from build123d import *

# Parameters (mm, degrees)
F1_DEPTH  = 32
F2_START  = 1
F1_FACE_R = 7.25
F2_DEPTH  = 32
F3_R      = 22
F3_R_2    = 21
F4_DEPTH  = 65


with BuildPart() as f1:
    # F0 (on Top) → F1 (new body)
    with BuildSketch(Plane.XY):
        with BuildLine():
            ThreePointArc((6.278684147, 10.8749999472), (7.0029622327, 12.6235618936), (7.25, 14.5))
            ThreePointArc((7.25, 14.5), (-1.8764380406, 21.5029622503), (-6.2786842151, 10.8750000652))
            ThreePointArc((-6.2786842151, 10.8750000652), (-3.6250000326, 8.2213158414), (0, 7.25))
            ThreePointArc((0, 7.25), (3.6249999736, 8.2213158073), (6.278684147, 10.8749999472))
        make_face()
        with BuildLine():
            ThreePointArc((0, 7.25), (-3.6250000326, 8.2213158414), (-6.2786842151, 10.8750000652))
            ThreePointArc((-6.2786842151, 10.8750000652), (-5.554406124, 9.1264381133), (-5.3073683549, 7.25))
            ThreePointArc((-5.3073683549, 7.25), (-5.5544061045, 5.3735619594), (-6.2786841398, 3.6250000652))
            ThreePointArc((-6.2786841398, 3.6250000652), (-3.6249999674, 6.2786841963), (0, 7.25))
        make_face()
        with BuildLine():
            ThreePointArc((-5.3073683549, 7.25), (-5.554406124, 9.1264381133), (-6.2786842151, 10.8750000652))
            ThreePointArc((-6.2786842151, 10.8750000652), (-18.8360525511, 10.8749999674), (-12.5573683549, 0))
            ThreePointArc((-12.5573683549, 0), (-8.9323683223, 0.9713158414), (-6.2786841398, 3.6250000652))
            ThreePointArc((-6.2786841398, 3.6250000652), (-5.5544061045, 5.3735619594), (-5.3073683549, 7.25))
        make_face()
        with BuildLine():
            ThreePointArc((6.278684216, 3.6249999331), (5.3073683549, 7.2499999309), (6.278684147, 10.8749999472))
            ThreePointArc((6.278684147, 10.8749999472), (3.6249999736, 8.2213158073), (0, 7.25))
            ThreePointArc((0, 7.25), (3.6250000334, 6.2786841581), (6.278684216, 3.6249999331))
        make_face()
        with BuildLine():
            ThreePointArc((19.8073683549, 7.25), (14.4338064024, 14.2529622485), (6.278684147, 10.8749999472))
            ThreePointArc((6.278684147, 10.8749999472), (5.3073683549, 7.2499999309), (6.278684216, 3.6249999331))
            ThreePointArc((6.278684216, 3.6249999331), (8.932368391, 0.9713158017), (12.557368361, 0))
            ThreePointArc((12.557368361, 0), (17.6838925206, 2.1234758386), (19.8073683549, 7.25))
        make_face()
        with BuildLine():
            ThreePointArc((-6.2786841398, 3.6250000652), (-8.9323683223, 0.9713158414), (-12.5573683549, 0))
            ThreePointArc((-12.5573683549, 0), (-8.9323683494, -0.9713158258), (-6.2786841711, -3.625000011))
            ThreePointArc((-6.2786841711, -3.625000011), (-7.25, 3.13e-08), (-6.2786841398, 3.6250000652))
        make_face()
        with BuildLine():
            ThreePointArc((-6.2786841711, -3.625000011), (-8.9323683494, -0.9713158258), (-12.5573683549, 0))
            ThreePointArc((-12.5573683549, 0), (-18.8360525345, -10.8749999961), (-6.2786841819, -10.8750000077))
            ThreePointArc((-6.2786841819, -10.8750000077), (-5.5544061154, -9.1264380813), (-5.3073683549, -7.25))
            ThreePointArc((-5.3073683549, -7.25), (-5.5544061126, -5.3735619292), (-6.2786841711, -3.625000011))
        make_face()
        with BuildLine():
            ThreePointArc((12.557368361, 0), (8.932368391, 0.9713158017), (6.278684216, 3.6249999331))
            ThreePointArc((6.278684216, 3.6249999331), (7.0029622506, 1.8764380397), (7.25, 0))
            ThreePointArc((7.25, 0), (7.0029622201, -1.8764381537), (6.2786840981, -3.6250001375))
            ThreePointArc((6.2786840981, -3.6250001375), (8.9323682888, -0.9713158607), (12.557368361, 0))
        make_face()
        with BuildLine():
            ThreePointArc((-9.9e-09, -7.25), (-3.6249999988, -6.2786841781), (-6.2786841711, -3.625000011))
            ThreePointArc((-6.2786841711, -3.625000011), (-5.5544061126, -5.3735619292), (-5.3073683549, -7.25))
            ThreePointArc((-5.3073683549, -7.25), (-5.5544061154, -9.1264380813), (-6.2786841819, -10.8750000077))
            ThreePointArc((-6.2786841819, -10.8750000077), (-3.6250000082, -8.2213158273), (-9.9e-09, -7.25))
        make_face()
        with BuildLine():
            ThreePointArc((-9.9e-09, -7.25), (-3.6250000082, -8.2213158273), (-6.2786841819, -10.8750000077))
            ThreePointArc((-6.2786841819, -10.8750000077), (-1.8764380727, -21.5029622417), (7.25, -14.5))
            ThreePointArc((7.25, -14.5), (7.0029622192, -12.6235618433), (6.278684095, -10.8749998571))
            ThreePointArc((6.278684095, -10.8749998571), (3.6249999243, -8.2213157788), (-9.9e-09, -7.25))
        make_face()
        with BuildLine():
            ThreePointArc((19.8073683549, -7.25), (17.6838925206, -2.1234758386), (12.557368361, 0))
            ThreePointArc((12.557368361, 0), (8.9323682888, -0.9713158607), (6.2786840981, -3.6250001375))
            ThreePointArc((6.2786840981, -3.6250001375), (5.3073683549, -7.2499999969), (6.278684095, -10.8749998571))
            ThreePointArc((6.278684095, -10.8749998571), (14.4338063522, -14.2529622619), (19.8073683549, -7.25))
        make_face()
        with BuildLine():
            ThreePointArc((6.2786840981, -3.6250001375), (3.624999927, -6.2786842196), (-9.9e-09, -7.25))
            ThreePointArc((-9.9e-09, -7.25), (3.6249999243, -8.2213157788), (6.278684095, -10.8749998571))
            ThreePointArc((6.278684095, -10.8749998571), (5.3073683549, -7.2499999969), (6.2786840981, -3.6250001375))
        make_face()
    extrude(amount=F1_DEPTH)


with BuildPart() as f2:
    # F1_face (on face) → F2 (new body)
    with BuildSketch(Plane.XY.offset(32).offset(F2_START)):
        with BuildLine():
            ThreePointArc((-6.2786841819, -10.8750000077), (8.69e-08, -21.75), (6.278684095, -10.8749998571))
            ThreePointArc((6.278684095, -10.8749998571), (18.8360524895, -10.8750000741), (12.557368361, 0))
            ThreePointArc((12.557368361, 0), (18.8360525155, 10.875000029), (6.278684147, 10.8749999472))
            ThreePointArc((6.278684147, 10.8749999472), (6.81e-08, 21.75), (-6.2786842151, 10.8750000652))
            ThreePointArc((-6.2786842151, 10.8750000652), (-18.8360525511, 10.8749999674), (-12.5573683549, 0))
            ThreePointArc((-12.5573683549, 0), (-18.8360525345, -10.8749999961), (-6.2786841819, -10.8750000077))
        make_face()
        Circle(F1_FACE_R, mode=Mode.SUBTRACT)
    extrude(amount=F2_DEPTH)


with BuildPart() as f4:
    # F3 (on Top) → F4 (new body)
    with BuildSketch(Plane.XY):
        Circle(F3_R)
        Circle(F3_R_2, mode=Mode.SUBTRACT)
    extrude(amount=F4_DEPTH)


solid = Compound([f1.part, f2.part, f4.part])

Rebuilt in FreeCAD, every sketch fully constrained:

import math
import FreeCAD as App
import Part
import Sketcher
Q = App.Units.Quantity

doc = App.newDocument("Part")
body = doc.addObject("PartDesign::Body", "Body")

# Sketch on XY plane
sketch1 = body.newObject("Sketcher::SketchObject", "Sketch")
sketch1.AttachmentSupport = (doc.getObject("XY_Plane"), [""])
sketch1.MapMode = "FlatFace"
sketch1.addGeometry([
    Part.ArcOfCircle(Part.Circle(App.Vector(0, -14.5, 0), App.Vector(0, 0, 1), 7.3), math.radians(0), math.radians(30)),  # 0
    Part.ArcOfCircle(Part.Circle(App.Vector(12.6, -7.2, 0), App.Vector(0, 0, 1), 7.2), math.radians(-150), math.radians(0)),  # 1
    Part.ArcOfCircle(Part.Circle(App.Vector(12.6, -7.2, 0), App.Vector(0, 0, 1), 7.2), math.radians(0), math.radians(90)),  # 2
    Part.ArcOfCircle(Part.Circle(App.Vector(12.6, 7.2, 0), App.Vector(0, 0, 1), 7.2), math.radians(-90), math.radians(0)),  # 3
    Part.ArcOfCircle(Part.Circle(App.Vector(12.6, 7.2, 0), App.Vector(0, 0, 1), 7.2), math.radians(0), math.radians(150)),  # 4
    Part.ArcOfCircle(Part.Circle(App.Vector(0, 14.5, 0), App.Vector(0, 0, 1), 7.3), math.radians(-30), math.radians(0)),  # 5
    Part.ArcOfCircle(Part.Circle(App.Vector(0, 14.5, 0), App.Vector(0, 0, 1), 7.2), math.radians(0), math.radians(210)),  # 6
    Part.ArcOfCircle(Part.Circle(App.Vector(-12.6, 7.2, 0), App.Vector(0, 0, 1), 7.2), math.radians(30), math.radians(270)),  # 7
    Part.ArcOfCircle(Part.Circle(App.Vector(-12.6, -7.2, 0), App.Vector(0, 0, 1), 7.2), math.radians(90), math.radians(330)),  # 8
    Part.ArcOfCircle(Part.Circle(App.Vector(0, -14.5, 0), App.Vector(0, 0, 1), 7.2), math.radians(150), math.radians(360)),  # 9
    Part.ArcOfCircle(Part.Circle(App.Vector(0, 0, 0), App.Vector(0, 0, 1), 7.2), math.radians(-30), math.radians(0)),  # 10
    Part.ArcOfCircle(Part.Circle(App.Vector(0, 0, 0), App.Vector(0, 0, 1), 7.2), math.radians(-90), math.radians(-30)),  # 11
    Part.ArcOfCircle(Part.Circle(App.Vector(0, 0, 0), App.Vector(0, 0, 1), 7.2), math.radians(-150), math.radians(-90)),  # 12
    Part.ArcOfCircle(Part.Circle(App.Vector(0, 0, 0), App.Vector(0, 0, 1), 7.2), math.radians(150), math.radians(210)),  # 13
    Part.ArcOfCircle(Part.Circle(App.Vector(0, 0, 0), App.Vector(0, 0, 1), 7.2), math.radians(90), math.radians(150)),  # 14
    Part.ArcOfCircle(Part.Circle(App.Vector(0, 0, 0), App.Vector(0, 0, 1), 7.2), math.radians(30), math.radians(90)),  # 15
    Part.ArcOfCircle(Part.Circle(App.Vector(0, 0, 0), App.Vector(0, 0, 1), 7.2), math.radians(0), math.radians(30)),  # 16
], False)
sketch1.addConstraint([
    Sketcher.Constraint("Tangent", 0, 2, 1, 1),
    Sketcher.Constraint("Tangent", 1, 2, 2, 1),
    Sketcher.Constraint("Tangent", 2, 2, 3, 1),
    Sketcher.Constraint("Tangent", 3, 2, 4, 1),
    Sketcher.Constraint("Tangent", 4, 2, 5, 1),
    Sketcher.Constraint("Tangent", 5, 2, 6, 1),
    Sketcher.Constraint("Tangent", 6, 2, 7, 1),
    Sketcher.Constraint("Tangent", 7, 2, 8, 1),
    Sketcher.Constraint("Tangent", 8, 2, 9, 1),
    Sketcher.Constraint("Tangent", 9, 2, 0, 1),
    Sketcher.Constraint("Tangent", 10, 1, 11, 2),
    Sketcher.Constraint("Tangent", 11, 1, 12, 2),
    Sketcher.Constraint("Tangent", 12, 1, 13, 2),
    Sketcher.Constraint("Tangent", 13, 1, 14, 2),
    Sketcher.Constraint("Tangent", 14, 1, 15, 2),
    Sketcher.Constraint("Tangent", 15, 1, 16, 2),
    Sketcher.Constraint("Tangent", 16, 1, 10, 2),
    Sketcher.Constraint("Coincident", 10, 3, -1, 1),
    Sketcher.Constraint("Coincident", 12, 3, -1, 1),
    Sketcher.Constraint("Coincident", 14, 3, -1, 1),
    Sketcher.Constraint("Equal", 0, 1),
    Sketcher.Constraint("Equal", 1, 2),
    Sketcher.Constraint("Equal", 2, 3),
    Sketcher.Constraint("Equal", 3, 4),
    Sketcher.Constraint("Equal", 4, 5),
    Sketcher.Constraint("Equal", 5, 6),
    Sketcher.Constraint("Equal", 6, 7),
    Sketcher.Constraint("Equal", 7, 8),
    Sketcher.Constraint("Equal", 8, 9),
    Sketcher.Constraint("Equal", 9, 10),
    Sketcher.Constraint("Symmetric", 0, 3, 5, 3, -1, 1),
    Sketcher.Constraint("Symmetric", 3, 3, 7, 3, -2),
    Sketcher.Constraint("Symmetric", 1, 2, 3, 2, -1),
    Sketcher.Constraint("PointOnObject", 11, 1, -2),
    Sketcher.Constraint("PointOnObject", 14, 1, -2),
    Sketcher.Constraint("PointOnObject", 16, 1, -1),
    Sketcher.Constraint("Horizontal", 8, 3, 1, 2),
    Sketcher.Constraint("Horizontal", 6, 3, 5, 2),
    Sketcher.Constraint("Horizontal", 0, 3, 9, 2),
    Sketcher.Constraint("Horizontal", 10, 1, 12, 1),
    Sketcher.Constraint("Horizontal", 13, 1, 15, 1),
    Sketcher.Constraint("Vertical", 4, 2, 10, 1),
    Sketcher.Constraint("Vertical", 12, 1, 13, 1),
    Sketcher.Constraint("Radius", 0, Q("7.25 mm")),
    Sketcher.Constraint("DistanceY", 0, 3, 5, 3, Q("29 mm")),
])
pad1 = body.newObject("PartDesign::Pad", "Pad")
pad1.Profile = sketch1
pad1.Length = 32
body2 = doc.addObject("PartDesign::Body", "Body001")

# Sketch on XY plane
sketch2 = body2.newObject("Sketcher::SketchObject", "Sketch001")
sketch2.AttachmentSupport = (doc.getObject("XY_Plane001"), [""])
sketch2.MapMode = "FlatFace"
sketch2.AttachmentOffset = App.Placement(App.Vector(0, 0, 33), App.Rotation())
sketch2.addGeometry([
    Part.ArcOfCircle(Part.Circle(App.Vector(0, -14, 0), App.Vector(0, 0, 1), 7), math.radians(150), math.radians(390)),  # 0
    Part.ArcOfCircle(Part.Circle(App.Vector(13, -7, 0), App.Vector(0, 0, 1), 7), math.radians(-150), math.radians(90)),  # 1
    Part.ArcOfCircle(Part.Circle(App.Vector(13, 7, 0), App.Vector(0, 0, 1), 7), math.radians(-90), math.radians(150)),  # 2
    Part.ArcOfCircle(Part.Circle(App.Vector(0, 14, 0), App.Vector(0, 0, 1), 7), math.radians(-30), math.radians(210)),  # 3
    Part.ArcOfCircle(Part.Circle(App.Vector(-13, 7, 0), App.Vector(0, 0, 1), 7), math.radians(30), math.radians(270)),  # 4
    Part.ArcOfCircle(Part.Circle(App.Vector(-13, -7, 0), App.Vector(0, 0, 1), 7), math.radians(90), math.radians(330)),  # 5
    Part.Circle(App.Vector(0, 0, 0), App.Vector(0, 0, 1), 7),  # 6
], False)
sketch2.addConstraint([
    Sketcher.Constraint("Tangent", 0, 2, 1, 1),
    Sketcher.Constraint("Tangent", 1, 2, 2, 1),
    Sketcher.Constraint("Tangent", 2, 2, 3, 1),
    Sketcher.Constraint("Tangent", 3, 2, 4, 1),
    Sketcher.Constraint("Tangent", 4, 2, 5, 1),
    Sketcher.Constraint("Tangent", 5, 2, 0, 1),
    Sketcher.Constraint("Coincident", 6, 3, -1, 1),
    Sketcher.Constraint("Equal", 0, 1),
    Sketcher.Constraint("Equal", 1, 2),
    Sketcher.Constraint("Equal", 2, 3),
    Sketcher.Constraint("Equal", 3, 4),
    Sketcher.Constraint("Equal", 4, 5),
    Sketcher.Constraint("Equal", 5, 6),
    Sketcher.Constraint("Symmetric", 0, 3, 3, 3, -1, 1),
    Sketcher.Constraint("Symmetric", 2, 3, 4, 3, -2),
    Sketcher.Constraint("PointOnObject", 1, 2, -1),
    Sketcher.Constraint("Diameter", 6, Q("14.5 mm")),
    Sketcher.Constraint("DistanceY", 0, 3, 3, 3, Q("29 mm")),
])
pad2 = body2.newObject("PartDesign::Pad", "Pad001")
pad2.Profile = sketch2
pad2.Length = 32
body3 = doc.addObject("PartDesign::Body", "Body002")

# Sketch on XY plane
sketch3 = body3.newObject("Sketcher::SketchObject", "Sketch002")
sketch3.AttachmentSupport = (doc.getObject("XY_Plane002"), [""])
sketch3.MapMode = "FlatFace"
sketch3.addGeometry([
    Part.Circle(App.Vector(0, 0, 0), App.Vector(0, 0, 1), 22),
    Part.Circle(App.Vector(0, 0, 0), App.Vector(0, 0, 1), 21),
], False)
sketch3.addConstraint([
    Sketcher.Constraint("Coincident", 0, 3, -1, 1),
    Sketcher.Constraint("Coincident", 1, 3, -1, 1),
    Sketcher.Constraint("Diameter", 0, Q("44 mm")),
    Sketcher.Constraint("Diameter", 1, Q("42 mm")),
])
pad3 = body3.newObject("PartDesign::Pad", "Pad002")
pad3.Profile = sketch3
pad3.Length = 65

doc.recompute()
